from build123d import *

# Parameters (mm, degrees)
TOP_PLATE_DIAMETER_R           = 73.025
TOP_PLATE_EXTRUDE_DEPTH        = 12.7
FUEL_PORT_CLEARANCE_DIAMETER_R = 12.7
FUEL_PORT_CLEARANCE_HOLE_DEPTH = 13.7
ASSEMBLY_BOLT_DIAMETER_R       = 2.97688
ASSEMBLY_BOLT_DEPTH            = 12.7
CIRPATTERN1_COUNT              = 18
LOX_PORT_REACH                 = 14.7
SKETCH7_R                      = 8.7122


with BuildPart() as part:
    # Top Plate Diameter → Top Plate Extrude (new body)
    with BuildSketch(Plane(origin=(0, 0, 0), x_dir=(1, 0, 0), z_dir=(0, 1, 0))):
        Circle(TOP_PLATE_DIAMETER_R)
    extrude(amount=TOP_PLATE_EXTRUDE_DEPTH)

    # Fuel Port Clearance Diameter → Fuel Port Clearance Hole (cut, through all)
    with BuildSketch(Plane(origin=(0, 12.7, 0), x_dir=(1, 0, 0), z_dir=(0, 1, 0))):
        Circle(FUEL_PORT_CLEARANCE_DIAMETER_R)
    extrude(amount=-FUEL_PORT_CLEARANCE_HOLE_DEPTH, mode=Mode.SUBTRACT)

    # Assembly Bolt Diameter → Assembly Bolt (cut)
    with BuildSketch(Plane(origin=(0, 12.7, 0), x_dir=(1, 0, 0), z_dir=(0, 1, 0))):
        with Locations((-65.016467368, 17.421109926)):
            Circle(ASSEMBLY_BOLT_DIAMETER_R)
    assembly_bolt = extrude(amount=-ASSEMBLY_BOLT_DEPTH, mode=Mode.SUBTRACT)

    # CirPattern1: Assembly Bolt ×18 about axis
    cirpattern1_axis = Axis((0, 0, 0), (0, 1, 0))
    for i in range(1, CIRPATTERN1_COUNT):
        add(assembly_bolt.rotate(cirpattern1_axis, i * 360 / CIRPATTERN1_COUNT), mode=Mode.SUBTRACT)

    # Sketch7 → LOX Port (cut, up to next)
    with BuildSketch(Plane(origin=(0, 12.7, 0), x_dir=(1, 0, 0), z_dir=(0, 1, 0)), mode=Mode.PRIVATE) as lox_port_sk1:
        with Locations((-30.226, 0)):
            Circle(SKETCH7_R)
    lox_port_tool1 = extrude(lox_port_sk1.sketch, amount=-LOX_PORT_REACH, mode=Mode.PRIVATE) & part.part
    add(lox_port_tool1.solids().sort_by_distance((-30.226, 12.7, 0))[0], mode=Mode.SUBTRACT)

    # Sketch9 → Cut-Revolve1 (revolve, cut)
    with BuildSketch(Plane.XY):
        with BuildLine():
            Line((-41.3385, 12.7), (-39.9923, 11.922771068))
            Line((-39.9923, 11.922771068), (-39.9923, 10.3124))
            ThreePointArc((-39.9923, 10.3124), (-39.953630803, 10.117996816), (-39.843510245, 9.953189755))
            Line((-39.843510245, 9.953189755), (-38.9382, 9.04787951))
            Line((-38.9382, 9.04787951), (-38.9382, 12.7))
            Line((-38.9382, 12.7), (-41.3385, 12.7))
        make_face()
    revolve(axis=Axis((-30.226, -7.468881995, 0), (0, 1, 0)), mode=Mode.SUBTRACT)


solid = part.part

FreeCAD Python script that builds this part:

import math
import FreeCAD as App
import Part
import Sketcher
Q = App.Units.Quantity

doc = App.newDocument("Part")
body = doc.addObject("PartDesign::Body", "Body")

# Sketch on XZ plane
sketch1 = body.newObject("Sketcher::SketchObject", "Sketch")
sketch1.AttachmentSupport = (doc.getObject("XZ_Plane"), [""])
sketch1.MapMode = "FlatFace"
sketch1.addGeometry(Part.Circle(App.Vector(0, 0, 0), App.Vector(0, 0, 1), 73.025), False)
sketch1.addConstraint([
    Sketcher.Constraint("Coincident", 0, 3, -1, 1),
    Sketcher.Constraint("Diameter", 0, Q("5.75 in")),
])
pad1 = body.newObject("PartDesign::Pad", "Pad")
pad1.Profile = sketch1
pad1.Length = Q("0.5 in")
pad1.Reversed = True

# Sketch on XZ plane
sketch2 = body.newObject("Sketcher::SketchObject", "Sketch001")
sketch2.AttachmentSupport = (doc.getObject("XZ_Plane"), [""])
sketch2.MapMode = "FlatFace"
sketch2.AttachmentOffset = App.Placement(App.Vector(0, 0, -0.5 * 25.4), App.Rotation())
sketch2.addGeometry(Part.Circle(App.Vector(0, 0, 0), App.Vector(0, 0, 1), 12.7), False)
sketch2.addConstraint([
    Sketcher.Constraint("Coincident", 0, 3, -1, 1),
    Sketcher.Constraint("Diameter", 0, Q("1 in")),
])
pocket1 = body.newObject("PartDesign::Pocket", "Pocket")
pocket1.Profile = sketch2
pocket1.Type = "ThroughAll"
pocket1.Reversed = True

# Sketch on XZ plane
sketch3 = body.newObject("Sketcher::SketchObject", "Sketch002")
sketch3.AttachmentSupport = (doc.getObject("XZ_Plane"), [""])
sketch3.MapMode = "FlatFace"
sketch3.AttachmentOffset = App.Placement(App.Vector(0, 0, -0.5 * 25.4), App.Rotation())
sketch3.addGeometry(Part.Circle(App.Vector(-65.016467, -17.42111, 0), App.Vector(0, 0, 1), 2.97688), False)
sketch3.addConstraint([
    Sketcher.Constraint("Diameter", 0, Q("0.2344 in")),
    Sketcher.Constraint("DistanceY", 0, 3, -1, 1, 17.42111),
    Sketcher.Constraint("DistanceX", 0, 3, -1, 1, 65.016467),
])
pocket2 = body.newObject("PartDesign::Pocket", "Pocket001")
pocket2.Profile = sketch3
pocket2.Length = Q("0.5 in")
pocket2.Reversed = True
doc.recompute()

polarpattern = body.newObject("PartDesign::PolarPattern", "PolarPattern")
polarpattern.Originals = [pocket2]
polarpattern.Axis = (doc.getObject("Y_Axis"), [""])
polarpattern.Angle = 360
polarpattern.Occurrences = 18
body.Tip = polarpattern

# Sketch on XZ plane
sketch4 = body.newObject("Sketcher::SketchObject", "Sketch003")
sketch4.AttachmentSupport = (doc.getObject("XZ_Plane"), [""])
sketch4.MapMode = "FlatFace"
sketch4.AttachmentOffset = App.Placement(App.Vector(0, 0, -0.5 * 25.4), App.Rotation())
sketch4.addGeometry(Part.Circle(App.Vector(-30.226, 0, 0), App.Vector(0, 0, 1), 8.7122), False)
sketch4.addConstraint([
    Sketcher.Constraint("PointOnObject", 0, 3, -1),
    Sketcher.Constraint("Diameter", 0, Q("0.686 in")),
    Sketcher.Constraint("DistanceX", 0, 3, -1, 1, Q("1.19 in")),
])
pocket3 = body.newObject("PartDesign::Pocket", "Pocket002")
pocket3.Profile = sketch4
pocket3.Type = "UpToFirst"
pocket3.Reversed = True

# Sketch on XY plane
sketch5 = body.newObject("Sketcher::SketchObject", "Sketch004")
sketch5.AttachmentSupport = (doc.getObject("XY_Plane"), [""])
sketch5.MapMode = "FlatFace"
sketch5.addGeometry([
    Part.LineSegment(App.Vector(-41.3385, 12.7, 0), App.Vector(-39.9923, 11.922771, 0)),  # 0
    Part.LineSegment(App.Vector(-39.9923, 11.922771, 0), App.Vector(-39.9923, 10.3124, 0)),  # 1
    Part.ArcOfCircle(Part.Circle(App.Vector(-39.4843, 10.3124, 0), App.Vector(0, 0, 1), 0.508), math.radians(180), math.radians(225)),  # 2
    Part.LineSegment(App.Vector(-39.84351, 9.95319, 0), App.Vector(-38.9382, 9.04788, 0)),  # 3
    Part.LineSegment(App.Vector(-38.9382, 9.04788, 0), App.Vector(-38.9382, 12.7, 0)),  # 4
    Part.LineSegment(App.Vector(-38.9382, 12.7, 0), App.Vector(-41.3385, 12.7, 0)),  # 5
], False)
sketch5.addGeometry(Part.LineSegment(App.Vector(-30.226, 9.04788, 0), App.Vector(-30.226, 12.7, 0)), True)  # axis
sketch5.addConstraint([
    Sketcher.Constraint("Coincident", 0, 2, 1, 1),
    Sketcher.Constraint("Tangent", 1, 2, 2, 1),
    Sketcher.Constraint("Tangent", 2, 2, 3, 1),
    Sketcher.Constraint("Coincident", 3, 2, 4, 1),
    Sketcher.Constraint("Coincident", 4, 2, 5, 1),
    Sketcher.Constraint("Coincident", 5, 2, 0, 1),
    Sketcher.Constraint("Vertical", 1),
    Sketcher.Constraint("Vertical", 4),
    Sketcher.Constraint("Horizontal", 5),
    Sketcher.Constraint("Vertical", 6),
    Sketcher.Constraint("Horizontal", 3, 2, 6, 1),
    Sketcher.Constraint("Horizontal", 5, 2, 6, 2),
    Sketcher.Constraint("Radius", 2, Q("0.02 in")),
    Sketcher.Constraint("Angle", 0, Q("-30 deg")),
    Sketcher.Constraint("Angle", 3, Q("-45 deg")),
    Sketcher.Constraint("DistanceY", -1, 1, 4, 2, Q("0.5 in")),
    Sketcher.Constraint("DistanceX", 6, 1, -1, 1, Q("1.19 in")),
    Sketcher.Constraint("DistanceX", 5, 2, 5, 1, Q("0.0945 in")),
    Sketcher.Constraint("DistanceY", -1, 1, 2, 3, Q("0.406 in")),
    Sketcher.Constraint("DistanceX", 3, 2, -1, 1, Q("1.533 in")),
    Sketcher.Constraint("DistanceX", 5, 2, 0, 2, Q("0.053 in")),
])
groove = body.newObject("PartDesign::Groove", "Groove")
groove.Profile = sketch5
groove.ReferenceAxis = (sketch5, ["Axis0"])
groove.Angle = 360

doc.recompute()
